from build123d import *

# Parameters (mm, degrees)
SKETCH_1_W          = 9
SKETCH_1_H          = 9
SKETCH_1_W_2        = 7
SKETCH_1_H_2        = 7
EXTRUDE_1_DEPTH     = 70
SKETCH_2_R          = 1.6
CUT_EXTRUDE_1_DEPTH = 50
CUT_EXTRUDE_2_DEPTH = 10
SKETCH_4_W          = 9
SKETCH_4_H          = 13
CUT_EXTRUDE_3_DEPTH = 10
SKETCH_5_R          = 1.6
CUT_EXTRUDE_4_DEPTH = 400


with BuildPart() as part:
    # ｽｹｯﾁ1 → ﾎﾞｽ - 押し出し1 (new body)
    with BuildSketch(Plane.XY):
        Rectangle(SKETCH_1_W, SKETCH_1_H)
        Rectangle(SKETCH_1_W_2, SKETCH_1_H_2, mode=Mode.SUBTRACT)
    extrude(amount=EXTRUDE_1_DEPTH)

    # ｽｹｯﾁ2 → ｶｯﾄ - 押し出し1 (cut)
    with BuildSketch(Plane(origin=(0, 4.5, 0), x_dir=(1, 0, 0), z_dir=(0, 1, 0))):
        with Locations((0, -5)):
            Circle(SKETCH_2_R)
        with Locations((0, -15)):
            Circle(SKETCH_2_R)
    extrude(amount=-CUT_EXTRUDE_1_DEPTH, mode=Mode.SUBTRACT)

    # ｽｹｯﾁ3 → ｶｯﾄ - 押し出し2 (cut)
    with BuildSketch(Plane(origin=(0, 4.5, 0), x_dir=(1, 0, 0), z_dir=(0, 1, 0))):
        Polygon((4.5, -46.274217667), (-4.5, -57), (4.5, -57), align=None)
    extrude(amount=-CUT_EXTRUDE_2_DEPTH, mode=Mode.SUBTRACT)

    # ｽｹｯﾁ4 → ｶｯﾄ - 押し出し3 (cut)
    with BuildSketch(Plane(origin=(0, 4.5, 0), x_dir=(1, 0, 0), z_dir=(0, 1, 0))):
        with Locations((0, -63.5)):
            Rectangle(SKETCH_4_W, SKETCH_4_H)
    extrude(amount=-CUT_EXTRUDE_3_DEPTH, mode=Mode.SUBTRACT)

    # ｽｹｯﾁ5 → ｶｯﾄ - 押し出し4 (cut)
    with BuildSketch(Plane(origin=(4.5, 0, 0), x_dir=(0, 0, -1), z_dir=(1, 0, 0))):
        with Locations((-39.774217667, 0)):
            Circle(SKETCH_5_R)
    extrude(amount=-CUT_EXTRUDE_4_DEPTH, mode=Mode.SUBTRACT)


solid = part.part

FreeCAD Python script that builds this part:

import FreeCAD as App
import Part
import Sketcher

V = App.Vector
Q = App.Units.Quantity


def add_polygon(sketch, points):
    """Adds a closed chain of lines whose ends are joined by coincident constraints."""
    first, n = sketch.GeometryCount, len(points)
    for a, b in zip(points, points[1:] + points[:1]):
        sketch.addGeometry(Part.LineSegment(App.Vector(*a, 0), App.Vector(*b, 0)), False)
    for i in range(n):
        sketch.addConstraint(Sketcher.Constraint("Coincident", first + i, 2, first + (i + 1) % n, 1))

doc = App.newDocument("Part")
body = doc.addObject("PartDesign::Body", "Body")
body.AllowCompound = True

# Sketch on XY plane
sketch1 = doc.addObject("Sketcher::SketchObject", "Sketch")
body.addObject(sketch1)
sketch1.AttachmentSupport = (doc.XY_Plane, [""])
sketch1.MapMode = "FlatFace"
add_polygon(sketch1, [(-4.5, 4.5), (-4.5, -4.5), (4.5, -4.5), (4.5, 4.5)])  # lines 0-3
add_polygon(sketch1, [(3.5, -3.5), (-3.5, -3.5), (-3.5, 3.5), (3.5, 3.5)])  # lines 4-7
sketch1.addConstraint(Sketcher.Constraint("Vertical", 0))
sketch1.addConstraint(Sketcher.Constraint("Horizontal", 1))
sketch1.addConstraint(Sketcher.Constraint("Vertical", 2))
sketch1.addConstraint(Sketcher.Constraint("Horizontal", 3))
sketch1.addConstraint(Sketcher.Constraint("Horizontal", 4))
sketch1.addConstraint(Sketcher.Constraint("Vertical", 5))
sketch1.addConstraint(Sketcher.Constraint("Horizontal", 6))
sketch1.addConstraint(Sketcher.Constraint("Vertical", 7))
sketch1.addConstraint(Sketcher.Constraint("Symmetric", 0, 2, 2, 2, -1, 1))
sketch1.addConstraint(Sketcher.Constraint("Symmetric", 4, 2, 6, 2, -1, 1))
sketch1.addConstraint(Sketcher.Constraint("Equal", 3, 0))
sketch1.addConstraint(Sketcher.Constraint("Equal", 6, 5))
sketch1.addConstraint(Sketcher.Constraint("DistanceX", 1, 1, 1, 2, Q("9 mm")))
sketch1.addConstraint(Sketcher.Constraint("DistanceX", 4, 2, 4, 1, Q("7 mm")))
pad1 = doc.addObject("PartDesign::Pad", "Pad")
body.addObject(pad1)
pad1.Profile = sketch1
pad1.Length = 70

# Sketch on XZ plane
sketch2 = doc.addObject("Sketcher::SketchObject", "Sketch001")
body.addObject(sketch2)
sketch2.AttachmentSupport = (doc.XZ_Plane, [""])
sketch2.MapMode = "FlatFace"
sketch2.AttachmentOffset = App.Placement(V(0, 0, -4.5), App.Rotation())
sketch2.addGeometry(Part.Circle(V(0, 5, 0), V(0, 0, 1), 1.6), False)
sketch2.addGeometry(Part.Circle(V(0, 15, 0), V(0, 0, 1), 1.6), False)
sketch2.addConstraint(Sketcher.Constraint("Equal", 0, 1))
sketch2.addConstraint(Sketcher.Constraint("PointOnObject", 0, 3, -2))
sketch2.addConstraint(Sketcher.Constraint("PointOnObject", 1, 3, -2))
sketch2.addConstraint(Sketcher.Constraint("Diameter", 0, Q("3.2 mm")))
sketch2.addConstraint(Sketcher.Constraint("DistanceY", -1, 1, 0, 3, Q("5 mm")))
sketch2.addConstraint(Sketcher.Constraint("DistanceY", -1, 1, 1, 3, Q("15 mm")))
pocket1 = doc.addObject("PartDesign::Pocket", "Pocket")
body.addObject(pocket1)
pocket1.Profile = sketch2
pocket1.Length = 50
pocket1.Reversed = True

# Sketch on XZ plane
sketch3 = doc.addObject("Sketcher::SketchObject", "Sketch002")
body.addObject(sketch3)
sketch3.AttachmentSupport = (doc.XZ_Plane, [""])
sketch3.MapMode = "FlatFace"
sketch3.AttachmentOffset = App.Placement(V(0, 0, -4.5), App.Rotation())
add_polygon(sketch3, [(4.5, 46.274218), (-4.5, 57), (4.5, 57)])  # lines 0-2
sketch3.addConstraint(Sketcher.Constraint("Horizontal", 1))
sketch3.addConstraint(Sketcher.Constraint("Vertical", 2))
sketch3.addConstraint(Sketcher.Constraint("DistanceX", 1, 1, 1, 2, Q("9 mm")))
sketch3.addConstraint(Sketcher.Constraint("Angle", 0, Q("130 deg")))
sketch3.addConstraint(Sketcher.Constraint("DistanceY", -1, 1, 0, 2, Q("57 mm")))
sketch3.addConstraint(Sketcher.Constraint("DistanceX", 0, 2, -1, 1, Q("4.5 mm")))
pocket2 = doc.addObject("PartDesign::Pocket", "Pocket001")
body.addObject(pocket2)
pocket2.Profile = sketch3
pocket2.Length = 10
pocket2.Reversed = True

# Sketch on XZ plane
sketch4 = doc.addObject("Sketcher::SketchObject", "Sketch003")
body.addObject(sketch4)
sketch4.AttachmentSupport = (doc.XZ_Plane, [""])
sketch4.MapMode = "FlatFace"
sketch4.AttachmentOffset = App.Placement(V(0, 0, -4.5), App.Rotation())
add_polygon(sketch4, [(-4.5, 57), (-4.5, 70), (4.5, 70), (4.5, 57)])  # lines 0-3
sketch4.addConstraint(Sketcher.Constraint("Vertical", 0))
sketch4.addConstraint(Sketcher.Constraint("Horizontal", 1))
sketch4.addConstraint(Sketcher.Constraint("Vertical", 2))
sketch4.addConstraint(Sketcher.Constraint("Horizontal", 3))
sketch4.addConstraint(Sketcher.Constraint("DistanceX", 1, 1, 1, 2, Q("9 mm")))
sketch4.addConstraint(Sketcher.Constraint("DistanceY", 0, 1, 0, 2, Q("13 mm")))
sketch4.addConstraint(Sketcher.Constraint("DistanceY", -1, 1, 0, 2, Q("70 mm")))
sketch4.addConstraint(Sketcher.Constraint("DistanceX", 0, 2, -1, 1, Q("4.5 mm")))
pocket3 = doc.addObject("PartDesign::Pocket", "Pocket002")
body.addObject(pocket3)
pocket3.Profile = sketch4
pocket3.Length = 10
pocket3.Reversed = True

# Sketch on YZ plane
sketch5 = doc.addObject("Sketcher::SketchObject", "Sketch004")
body.addObject(sketch5)
sketch5.AttachmentSupport = (doc.YZ_Plane, [""])
sketch5.MapMode = "FlatFace"
sketch5.AttachmentOffset = App.Placement(V(0, 0, 4.5), App.Rotation())
sketch5.addGeometry(Part.Circle(V(0, 39.774218, 0), V(0, 0, 1), 1.6), False)
sketch5.addConstraint(Sketcher.Constraint("PointOnObject", 0, 3, -2))
sketch5.addConstraint(Sketcher.Constraint("Diameter", 0, Q("3.2 mm")))
sketch5.addConstraint(Sketcher.Constraint("DistanceY", -1, 1, 0, 3, Q("39.774218 mm")))
pocket4 = doc.addObject("PartDesign::Pocket", "Pocket003")
body.addObject(pocket4)
pocket4.Profile = sketch5
pocket4.Length = 400

doc.recompute()
